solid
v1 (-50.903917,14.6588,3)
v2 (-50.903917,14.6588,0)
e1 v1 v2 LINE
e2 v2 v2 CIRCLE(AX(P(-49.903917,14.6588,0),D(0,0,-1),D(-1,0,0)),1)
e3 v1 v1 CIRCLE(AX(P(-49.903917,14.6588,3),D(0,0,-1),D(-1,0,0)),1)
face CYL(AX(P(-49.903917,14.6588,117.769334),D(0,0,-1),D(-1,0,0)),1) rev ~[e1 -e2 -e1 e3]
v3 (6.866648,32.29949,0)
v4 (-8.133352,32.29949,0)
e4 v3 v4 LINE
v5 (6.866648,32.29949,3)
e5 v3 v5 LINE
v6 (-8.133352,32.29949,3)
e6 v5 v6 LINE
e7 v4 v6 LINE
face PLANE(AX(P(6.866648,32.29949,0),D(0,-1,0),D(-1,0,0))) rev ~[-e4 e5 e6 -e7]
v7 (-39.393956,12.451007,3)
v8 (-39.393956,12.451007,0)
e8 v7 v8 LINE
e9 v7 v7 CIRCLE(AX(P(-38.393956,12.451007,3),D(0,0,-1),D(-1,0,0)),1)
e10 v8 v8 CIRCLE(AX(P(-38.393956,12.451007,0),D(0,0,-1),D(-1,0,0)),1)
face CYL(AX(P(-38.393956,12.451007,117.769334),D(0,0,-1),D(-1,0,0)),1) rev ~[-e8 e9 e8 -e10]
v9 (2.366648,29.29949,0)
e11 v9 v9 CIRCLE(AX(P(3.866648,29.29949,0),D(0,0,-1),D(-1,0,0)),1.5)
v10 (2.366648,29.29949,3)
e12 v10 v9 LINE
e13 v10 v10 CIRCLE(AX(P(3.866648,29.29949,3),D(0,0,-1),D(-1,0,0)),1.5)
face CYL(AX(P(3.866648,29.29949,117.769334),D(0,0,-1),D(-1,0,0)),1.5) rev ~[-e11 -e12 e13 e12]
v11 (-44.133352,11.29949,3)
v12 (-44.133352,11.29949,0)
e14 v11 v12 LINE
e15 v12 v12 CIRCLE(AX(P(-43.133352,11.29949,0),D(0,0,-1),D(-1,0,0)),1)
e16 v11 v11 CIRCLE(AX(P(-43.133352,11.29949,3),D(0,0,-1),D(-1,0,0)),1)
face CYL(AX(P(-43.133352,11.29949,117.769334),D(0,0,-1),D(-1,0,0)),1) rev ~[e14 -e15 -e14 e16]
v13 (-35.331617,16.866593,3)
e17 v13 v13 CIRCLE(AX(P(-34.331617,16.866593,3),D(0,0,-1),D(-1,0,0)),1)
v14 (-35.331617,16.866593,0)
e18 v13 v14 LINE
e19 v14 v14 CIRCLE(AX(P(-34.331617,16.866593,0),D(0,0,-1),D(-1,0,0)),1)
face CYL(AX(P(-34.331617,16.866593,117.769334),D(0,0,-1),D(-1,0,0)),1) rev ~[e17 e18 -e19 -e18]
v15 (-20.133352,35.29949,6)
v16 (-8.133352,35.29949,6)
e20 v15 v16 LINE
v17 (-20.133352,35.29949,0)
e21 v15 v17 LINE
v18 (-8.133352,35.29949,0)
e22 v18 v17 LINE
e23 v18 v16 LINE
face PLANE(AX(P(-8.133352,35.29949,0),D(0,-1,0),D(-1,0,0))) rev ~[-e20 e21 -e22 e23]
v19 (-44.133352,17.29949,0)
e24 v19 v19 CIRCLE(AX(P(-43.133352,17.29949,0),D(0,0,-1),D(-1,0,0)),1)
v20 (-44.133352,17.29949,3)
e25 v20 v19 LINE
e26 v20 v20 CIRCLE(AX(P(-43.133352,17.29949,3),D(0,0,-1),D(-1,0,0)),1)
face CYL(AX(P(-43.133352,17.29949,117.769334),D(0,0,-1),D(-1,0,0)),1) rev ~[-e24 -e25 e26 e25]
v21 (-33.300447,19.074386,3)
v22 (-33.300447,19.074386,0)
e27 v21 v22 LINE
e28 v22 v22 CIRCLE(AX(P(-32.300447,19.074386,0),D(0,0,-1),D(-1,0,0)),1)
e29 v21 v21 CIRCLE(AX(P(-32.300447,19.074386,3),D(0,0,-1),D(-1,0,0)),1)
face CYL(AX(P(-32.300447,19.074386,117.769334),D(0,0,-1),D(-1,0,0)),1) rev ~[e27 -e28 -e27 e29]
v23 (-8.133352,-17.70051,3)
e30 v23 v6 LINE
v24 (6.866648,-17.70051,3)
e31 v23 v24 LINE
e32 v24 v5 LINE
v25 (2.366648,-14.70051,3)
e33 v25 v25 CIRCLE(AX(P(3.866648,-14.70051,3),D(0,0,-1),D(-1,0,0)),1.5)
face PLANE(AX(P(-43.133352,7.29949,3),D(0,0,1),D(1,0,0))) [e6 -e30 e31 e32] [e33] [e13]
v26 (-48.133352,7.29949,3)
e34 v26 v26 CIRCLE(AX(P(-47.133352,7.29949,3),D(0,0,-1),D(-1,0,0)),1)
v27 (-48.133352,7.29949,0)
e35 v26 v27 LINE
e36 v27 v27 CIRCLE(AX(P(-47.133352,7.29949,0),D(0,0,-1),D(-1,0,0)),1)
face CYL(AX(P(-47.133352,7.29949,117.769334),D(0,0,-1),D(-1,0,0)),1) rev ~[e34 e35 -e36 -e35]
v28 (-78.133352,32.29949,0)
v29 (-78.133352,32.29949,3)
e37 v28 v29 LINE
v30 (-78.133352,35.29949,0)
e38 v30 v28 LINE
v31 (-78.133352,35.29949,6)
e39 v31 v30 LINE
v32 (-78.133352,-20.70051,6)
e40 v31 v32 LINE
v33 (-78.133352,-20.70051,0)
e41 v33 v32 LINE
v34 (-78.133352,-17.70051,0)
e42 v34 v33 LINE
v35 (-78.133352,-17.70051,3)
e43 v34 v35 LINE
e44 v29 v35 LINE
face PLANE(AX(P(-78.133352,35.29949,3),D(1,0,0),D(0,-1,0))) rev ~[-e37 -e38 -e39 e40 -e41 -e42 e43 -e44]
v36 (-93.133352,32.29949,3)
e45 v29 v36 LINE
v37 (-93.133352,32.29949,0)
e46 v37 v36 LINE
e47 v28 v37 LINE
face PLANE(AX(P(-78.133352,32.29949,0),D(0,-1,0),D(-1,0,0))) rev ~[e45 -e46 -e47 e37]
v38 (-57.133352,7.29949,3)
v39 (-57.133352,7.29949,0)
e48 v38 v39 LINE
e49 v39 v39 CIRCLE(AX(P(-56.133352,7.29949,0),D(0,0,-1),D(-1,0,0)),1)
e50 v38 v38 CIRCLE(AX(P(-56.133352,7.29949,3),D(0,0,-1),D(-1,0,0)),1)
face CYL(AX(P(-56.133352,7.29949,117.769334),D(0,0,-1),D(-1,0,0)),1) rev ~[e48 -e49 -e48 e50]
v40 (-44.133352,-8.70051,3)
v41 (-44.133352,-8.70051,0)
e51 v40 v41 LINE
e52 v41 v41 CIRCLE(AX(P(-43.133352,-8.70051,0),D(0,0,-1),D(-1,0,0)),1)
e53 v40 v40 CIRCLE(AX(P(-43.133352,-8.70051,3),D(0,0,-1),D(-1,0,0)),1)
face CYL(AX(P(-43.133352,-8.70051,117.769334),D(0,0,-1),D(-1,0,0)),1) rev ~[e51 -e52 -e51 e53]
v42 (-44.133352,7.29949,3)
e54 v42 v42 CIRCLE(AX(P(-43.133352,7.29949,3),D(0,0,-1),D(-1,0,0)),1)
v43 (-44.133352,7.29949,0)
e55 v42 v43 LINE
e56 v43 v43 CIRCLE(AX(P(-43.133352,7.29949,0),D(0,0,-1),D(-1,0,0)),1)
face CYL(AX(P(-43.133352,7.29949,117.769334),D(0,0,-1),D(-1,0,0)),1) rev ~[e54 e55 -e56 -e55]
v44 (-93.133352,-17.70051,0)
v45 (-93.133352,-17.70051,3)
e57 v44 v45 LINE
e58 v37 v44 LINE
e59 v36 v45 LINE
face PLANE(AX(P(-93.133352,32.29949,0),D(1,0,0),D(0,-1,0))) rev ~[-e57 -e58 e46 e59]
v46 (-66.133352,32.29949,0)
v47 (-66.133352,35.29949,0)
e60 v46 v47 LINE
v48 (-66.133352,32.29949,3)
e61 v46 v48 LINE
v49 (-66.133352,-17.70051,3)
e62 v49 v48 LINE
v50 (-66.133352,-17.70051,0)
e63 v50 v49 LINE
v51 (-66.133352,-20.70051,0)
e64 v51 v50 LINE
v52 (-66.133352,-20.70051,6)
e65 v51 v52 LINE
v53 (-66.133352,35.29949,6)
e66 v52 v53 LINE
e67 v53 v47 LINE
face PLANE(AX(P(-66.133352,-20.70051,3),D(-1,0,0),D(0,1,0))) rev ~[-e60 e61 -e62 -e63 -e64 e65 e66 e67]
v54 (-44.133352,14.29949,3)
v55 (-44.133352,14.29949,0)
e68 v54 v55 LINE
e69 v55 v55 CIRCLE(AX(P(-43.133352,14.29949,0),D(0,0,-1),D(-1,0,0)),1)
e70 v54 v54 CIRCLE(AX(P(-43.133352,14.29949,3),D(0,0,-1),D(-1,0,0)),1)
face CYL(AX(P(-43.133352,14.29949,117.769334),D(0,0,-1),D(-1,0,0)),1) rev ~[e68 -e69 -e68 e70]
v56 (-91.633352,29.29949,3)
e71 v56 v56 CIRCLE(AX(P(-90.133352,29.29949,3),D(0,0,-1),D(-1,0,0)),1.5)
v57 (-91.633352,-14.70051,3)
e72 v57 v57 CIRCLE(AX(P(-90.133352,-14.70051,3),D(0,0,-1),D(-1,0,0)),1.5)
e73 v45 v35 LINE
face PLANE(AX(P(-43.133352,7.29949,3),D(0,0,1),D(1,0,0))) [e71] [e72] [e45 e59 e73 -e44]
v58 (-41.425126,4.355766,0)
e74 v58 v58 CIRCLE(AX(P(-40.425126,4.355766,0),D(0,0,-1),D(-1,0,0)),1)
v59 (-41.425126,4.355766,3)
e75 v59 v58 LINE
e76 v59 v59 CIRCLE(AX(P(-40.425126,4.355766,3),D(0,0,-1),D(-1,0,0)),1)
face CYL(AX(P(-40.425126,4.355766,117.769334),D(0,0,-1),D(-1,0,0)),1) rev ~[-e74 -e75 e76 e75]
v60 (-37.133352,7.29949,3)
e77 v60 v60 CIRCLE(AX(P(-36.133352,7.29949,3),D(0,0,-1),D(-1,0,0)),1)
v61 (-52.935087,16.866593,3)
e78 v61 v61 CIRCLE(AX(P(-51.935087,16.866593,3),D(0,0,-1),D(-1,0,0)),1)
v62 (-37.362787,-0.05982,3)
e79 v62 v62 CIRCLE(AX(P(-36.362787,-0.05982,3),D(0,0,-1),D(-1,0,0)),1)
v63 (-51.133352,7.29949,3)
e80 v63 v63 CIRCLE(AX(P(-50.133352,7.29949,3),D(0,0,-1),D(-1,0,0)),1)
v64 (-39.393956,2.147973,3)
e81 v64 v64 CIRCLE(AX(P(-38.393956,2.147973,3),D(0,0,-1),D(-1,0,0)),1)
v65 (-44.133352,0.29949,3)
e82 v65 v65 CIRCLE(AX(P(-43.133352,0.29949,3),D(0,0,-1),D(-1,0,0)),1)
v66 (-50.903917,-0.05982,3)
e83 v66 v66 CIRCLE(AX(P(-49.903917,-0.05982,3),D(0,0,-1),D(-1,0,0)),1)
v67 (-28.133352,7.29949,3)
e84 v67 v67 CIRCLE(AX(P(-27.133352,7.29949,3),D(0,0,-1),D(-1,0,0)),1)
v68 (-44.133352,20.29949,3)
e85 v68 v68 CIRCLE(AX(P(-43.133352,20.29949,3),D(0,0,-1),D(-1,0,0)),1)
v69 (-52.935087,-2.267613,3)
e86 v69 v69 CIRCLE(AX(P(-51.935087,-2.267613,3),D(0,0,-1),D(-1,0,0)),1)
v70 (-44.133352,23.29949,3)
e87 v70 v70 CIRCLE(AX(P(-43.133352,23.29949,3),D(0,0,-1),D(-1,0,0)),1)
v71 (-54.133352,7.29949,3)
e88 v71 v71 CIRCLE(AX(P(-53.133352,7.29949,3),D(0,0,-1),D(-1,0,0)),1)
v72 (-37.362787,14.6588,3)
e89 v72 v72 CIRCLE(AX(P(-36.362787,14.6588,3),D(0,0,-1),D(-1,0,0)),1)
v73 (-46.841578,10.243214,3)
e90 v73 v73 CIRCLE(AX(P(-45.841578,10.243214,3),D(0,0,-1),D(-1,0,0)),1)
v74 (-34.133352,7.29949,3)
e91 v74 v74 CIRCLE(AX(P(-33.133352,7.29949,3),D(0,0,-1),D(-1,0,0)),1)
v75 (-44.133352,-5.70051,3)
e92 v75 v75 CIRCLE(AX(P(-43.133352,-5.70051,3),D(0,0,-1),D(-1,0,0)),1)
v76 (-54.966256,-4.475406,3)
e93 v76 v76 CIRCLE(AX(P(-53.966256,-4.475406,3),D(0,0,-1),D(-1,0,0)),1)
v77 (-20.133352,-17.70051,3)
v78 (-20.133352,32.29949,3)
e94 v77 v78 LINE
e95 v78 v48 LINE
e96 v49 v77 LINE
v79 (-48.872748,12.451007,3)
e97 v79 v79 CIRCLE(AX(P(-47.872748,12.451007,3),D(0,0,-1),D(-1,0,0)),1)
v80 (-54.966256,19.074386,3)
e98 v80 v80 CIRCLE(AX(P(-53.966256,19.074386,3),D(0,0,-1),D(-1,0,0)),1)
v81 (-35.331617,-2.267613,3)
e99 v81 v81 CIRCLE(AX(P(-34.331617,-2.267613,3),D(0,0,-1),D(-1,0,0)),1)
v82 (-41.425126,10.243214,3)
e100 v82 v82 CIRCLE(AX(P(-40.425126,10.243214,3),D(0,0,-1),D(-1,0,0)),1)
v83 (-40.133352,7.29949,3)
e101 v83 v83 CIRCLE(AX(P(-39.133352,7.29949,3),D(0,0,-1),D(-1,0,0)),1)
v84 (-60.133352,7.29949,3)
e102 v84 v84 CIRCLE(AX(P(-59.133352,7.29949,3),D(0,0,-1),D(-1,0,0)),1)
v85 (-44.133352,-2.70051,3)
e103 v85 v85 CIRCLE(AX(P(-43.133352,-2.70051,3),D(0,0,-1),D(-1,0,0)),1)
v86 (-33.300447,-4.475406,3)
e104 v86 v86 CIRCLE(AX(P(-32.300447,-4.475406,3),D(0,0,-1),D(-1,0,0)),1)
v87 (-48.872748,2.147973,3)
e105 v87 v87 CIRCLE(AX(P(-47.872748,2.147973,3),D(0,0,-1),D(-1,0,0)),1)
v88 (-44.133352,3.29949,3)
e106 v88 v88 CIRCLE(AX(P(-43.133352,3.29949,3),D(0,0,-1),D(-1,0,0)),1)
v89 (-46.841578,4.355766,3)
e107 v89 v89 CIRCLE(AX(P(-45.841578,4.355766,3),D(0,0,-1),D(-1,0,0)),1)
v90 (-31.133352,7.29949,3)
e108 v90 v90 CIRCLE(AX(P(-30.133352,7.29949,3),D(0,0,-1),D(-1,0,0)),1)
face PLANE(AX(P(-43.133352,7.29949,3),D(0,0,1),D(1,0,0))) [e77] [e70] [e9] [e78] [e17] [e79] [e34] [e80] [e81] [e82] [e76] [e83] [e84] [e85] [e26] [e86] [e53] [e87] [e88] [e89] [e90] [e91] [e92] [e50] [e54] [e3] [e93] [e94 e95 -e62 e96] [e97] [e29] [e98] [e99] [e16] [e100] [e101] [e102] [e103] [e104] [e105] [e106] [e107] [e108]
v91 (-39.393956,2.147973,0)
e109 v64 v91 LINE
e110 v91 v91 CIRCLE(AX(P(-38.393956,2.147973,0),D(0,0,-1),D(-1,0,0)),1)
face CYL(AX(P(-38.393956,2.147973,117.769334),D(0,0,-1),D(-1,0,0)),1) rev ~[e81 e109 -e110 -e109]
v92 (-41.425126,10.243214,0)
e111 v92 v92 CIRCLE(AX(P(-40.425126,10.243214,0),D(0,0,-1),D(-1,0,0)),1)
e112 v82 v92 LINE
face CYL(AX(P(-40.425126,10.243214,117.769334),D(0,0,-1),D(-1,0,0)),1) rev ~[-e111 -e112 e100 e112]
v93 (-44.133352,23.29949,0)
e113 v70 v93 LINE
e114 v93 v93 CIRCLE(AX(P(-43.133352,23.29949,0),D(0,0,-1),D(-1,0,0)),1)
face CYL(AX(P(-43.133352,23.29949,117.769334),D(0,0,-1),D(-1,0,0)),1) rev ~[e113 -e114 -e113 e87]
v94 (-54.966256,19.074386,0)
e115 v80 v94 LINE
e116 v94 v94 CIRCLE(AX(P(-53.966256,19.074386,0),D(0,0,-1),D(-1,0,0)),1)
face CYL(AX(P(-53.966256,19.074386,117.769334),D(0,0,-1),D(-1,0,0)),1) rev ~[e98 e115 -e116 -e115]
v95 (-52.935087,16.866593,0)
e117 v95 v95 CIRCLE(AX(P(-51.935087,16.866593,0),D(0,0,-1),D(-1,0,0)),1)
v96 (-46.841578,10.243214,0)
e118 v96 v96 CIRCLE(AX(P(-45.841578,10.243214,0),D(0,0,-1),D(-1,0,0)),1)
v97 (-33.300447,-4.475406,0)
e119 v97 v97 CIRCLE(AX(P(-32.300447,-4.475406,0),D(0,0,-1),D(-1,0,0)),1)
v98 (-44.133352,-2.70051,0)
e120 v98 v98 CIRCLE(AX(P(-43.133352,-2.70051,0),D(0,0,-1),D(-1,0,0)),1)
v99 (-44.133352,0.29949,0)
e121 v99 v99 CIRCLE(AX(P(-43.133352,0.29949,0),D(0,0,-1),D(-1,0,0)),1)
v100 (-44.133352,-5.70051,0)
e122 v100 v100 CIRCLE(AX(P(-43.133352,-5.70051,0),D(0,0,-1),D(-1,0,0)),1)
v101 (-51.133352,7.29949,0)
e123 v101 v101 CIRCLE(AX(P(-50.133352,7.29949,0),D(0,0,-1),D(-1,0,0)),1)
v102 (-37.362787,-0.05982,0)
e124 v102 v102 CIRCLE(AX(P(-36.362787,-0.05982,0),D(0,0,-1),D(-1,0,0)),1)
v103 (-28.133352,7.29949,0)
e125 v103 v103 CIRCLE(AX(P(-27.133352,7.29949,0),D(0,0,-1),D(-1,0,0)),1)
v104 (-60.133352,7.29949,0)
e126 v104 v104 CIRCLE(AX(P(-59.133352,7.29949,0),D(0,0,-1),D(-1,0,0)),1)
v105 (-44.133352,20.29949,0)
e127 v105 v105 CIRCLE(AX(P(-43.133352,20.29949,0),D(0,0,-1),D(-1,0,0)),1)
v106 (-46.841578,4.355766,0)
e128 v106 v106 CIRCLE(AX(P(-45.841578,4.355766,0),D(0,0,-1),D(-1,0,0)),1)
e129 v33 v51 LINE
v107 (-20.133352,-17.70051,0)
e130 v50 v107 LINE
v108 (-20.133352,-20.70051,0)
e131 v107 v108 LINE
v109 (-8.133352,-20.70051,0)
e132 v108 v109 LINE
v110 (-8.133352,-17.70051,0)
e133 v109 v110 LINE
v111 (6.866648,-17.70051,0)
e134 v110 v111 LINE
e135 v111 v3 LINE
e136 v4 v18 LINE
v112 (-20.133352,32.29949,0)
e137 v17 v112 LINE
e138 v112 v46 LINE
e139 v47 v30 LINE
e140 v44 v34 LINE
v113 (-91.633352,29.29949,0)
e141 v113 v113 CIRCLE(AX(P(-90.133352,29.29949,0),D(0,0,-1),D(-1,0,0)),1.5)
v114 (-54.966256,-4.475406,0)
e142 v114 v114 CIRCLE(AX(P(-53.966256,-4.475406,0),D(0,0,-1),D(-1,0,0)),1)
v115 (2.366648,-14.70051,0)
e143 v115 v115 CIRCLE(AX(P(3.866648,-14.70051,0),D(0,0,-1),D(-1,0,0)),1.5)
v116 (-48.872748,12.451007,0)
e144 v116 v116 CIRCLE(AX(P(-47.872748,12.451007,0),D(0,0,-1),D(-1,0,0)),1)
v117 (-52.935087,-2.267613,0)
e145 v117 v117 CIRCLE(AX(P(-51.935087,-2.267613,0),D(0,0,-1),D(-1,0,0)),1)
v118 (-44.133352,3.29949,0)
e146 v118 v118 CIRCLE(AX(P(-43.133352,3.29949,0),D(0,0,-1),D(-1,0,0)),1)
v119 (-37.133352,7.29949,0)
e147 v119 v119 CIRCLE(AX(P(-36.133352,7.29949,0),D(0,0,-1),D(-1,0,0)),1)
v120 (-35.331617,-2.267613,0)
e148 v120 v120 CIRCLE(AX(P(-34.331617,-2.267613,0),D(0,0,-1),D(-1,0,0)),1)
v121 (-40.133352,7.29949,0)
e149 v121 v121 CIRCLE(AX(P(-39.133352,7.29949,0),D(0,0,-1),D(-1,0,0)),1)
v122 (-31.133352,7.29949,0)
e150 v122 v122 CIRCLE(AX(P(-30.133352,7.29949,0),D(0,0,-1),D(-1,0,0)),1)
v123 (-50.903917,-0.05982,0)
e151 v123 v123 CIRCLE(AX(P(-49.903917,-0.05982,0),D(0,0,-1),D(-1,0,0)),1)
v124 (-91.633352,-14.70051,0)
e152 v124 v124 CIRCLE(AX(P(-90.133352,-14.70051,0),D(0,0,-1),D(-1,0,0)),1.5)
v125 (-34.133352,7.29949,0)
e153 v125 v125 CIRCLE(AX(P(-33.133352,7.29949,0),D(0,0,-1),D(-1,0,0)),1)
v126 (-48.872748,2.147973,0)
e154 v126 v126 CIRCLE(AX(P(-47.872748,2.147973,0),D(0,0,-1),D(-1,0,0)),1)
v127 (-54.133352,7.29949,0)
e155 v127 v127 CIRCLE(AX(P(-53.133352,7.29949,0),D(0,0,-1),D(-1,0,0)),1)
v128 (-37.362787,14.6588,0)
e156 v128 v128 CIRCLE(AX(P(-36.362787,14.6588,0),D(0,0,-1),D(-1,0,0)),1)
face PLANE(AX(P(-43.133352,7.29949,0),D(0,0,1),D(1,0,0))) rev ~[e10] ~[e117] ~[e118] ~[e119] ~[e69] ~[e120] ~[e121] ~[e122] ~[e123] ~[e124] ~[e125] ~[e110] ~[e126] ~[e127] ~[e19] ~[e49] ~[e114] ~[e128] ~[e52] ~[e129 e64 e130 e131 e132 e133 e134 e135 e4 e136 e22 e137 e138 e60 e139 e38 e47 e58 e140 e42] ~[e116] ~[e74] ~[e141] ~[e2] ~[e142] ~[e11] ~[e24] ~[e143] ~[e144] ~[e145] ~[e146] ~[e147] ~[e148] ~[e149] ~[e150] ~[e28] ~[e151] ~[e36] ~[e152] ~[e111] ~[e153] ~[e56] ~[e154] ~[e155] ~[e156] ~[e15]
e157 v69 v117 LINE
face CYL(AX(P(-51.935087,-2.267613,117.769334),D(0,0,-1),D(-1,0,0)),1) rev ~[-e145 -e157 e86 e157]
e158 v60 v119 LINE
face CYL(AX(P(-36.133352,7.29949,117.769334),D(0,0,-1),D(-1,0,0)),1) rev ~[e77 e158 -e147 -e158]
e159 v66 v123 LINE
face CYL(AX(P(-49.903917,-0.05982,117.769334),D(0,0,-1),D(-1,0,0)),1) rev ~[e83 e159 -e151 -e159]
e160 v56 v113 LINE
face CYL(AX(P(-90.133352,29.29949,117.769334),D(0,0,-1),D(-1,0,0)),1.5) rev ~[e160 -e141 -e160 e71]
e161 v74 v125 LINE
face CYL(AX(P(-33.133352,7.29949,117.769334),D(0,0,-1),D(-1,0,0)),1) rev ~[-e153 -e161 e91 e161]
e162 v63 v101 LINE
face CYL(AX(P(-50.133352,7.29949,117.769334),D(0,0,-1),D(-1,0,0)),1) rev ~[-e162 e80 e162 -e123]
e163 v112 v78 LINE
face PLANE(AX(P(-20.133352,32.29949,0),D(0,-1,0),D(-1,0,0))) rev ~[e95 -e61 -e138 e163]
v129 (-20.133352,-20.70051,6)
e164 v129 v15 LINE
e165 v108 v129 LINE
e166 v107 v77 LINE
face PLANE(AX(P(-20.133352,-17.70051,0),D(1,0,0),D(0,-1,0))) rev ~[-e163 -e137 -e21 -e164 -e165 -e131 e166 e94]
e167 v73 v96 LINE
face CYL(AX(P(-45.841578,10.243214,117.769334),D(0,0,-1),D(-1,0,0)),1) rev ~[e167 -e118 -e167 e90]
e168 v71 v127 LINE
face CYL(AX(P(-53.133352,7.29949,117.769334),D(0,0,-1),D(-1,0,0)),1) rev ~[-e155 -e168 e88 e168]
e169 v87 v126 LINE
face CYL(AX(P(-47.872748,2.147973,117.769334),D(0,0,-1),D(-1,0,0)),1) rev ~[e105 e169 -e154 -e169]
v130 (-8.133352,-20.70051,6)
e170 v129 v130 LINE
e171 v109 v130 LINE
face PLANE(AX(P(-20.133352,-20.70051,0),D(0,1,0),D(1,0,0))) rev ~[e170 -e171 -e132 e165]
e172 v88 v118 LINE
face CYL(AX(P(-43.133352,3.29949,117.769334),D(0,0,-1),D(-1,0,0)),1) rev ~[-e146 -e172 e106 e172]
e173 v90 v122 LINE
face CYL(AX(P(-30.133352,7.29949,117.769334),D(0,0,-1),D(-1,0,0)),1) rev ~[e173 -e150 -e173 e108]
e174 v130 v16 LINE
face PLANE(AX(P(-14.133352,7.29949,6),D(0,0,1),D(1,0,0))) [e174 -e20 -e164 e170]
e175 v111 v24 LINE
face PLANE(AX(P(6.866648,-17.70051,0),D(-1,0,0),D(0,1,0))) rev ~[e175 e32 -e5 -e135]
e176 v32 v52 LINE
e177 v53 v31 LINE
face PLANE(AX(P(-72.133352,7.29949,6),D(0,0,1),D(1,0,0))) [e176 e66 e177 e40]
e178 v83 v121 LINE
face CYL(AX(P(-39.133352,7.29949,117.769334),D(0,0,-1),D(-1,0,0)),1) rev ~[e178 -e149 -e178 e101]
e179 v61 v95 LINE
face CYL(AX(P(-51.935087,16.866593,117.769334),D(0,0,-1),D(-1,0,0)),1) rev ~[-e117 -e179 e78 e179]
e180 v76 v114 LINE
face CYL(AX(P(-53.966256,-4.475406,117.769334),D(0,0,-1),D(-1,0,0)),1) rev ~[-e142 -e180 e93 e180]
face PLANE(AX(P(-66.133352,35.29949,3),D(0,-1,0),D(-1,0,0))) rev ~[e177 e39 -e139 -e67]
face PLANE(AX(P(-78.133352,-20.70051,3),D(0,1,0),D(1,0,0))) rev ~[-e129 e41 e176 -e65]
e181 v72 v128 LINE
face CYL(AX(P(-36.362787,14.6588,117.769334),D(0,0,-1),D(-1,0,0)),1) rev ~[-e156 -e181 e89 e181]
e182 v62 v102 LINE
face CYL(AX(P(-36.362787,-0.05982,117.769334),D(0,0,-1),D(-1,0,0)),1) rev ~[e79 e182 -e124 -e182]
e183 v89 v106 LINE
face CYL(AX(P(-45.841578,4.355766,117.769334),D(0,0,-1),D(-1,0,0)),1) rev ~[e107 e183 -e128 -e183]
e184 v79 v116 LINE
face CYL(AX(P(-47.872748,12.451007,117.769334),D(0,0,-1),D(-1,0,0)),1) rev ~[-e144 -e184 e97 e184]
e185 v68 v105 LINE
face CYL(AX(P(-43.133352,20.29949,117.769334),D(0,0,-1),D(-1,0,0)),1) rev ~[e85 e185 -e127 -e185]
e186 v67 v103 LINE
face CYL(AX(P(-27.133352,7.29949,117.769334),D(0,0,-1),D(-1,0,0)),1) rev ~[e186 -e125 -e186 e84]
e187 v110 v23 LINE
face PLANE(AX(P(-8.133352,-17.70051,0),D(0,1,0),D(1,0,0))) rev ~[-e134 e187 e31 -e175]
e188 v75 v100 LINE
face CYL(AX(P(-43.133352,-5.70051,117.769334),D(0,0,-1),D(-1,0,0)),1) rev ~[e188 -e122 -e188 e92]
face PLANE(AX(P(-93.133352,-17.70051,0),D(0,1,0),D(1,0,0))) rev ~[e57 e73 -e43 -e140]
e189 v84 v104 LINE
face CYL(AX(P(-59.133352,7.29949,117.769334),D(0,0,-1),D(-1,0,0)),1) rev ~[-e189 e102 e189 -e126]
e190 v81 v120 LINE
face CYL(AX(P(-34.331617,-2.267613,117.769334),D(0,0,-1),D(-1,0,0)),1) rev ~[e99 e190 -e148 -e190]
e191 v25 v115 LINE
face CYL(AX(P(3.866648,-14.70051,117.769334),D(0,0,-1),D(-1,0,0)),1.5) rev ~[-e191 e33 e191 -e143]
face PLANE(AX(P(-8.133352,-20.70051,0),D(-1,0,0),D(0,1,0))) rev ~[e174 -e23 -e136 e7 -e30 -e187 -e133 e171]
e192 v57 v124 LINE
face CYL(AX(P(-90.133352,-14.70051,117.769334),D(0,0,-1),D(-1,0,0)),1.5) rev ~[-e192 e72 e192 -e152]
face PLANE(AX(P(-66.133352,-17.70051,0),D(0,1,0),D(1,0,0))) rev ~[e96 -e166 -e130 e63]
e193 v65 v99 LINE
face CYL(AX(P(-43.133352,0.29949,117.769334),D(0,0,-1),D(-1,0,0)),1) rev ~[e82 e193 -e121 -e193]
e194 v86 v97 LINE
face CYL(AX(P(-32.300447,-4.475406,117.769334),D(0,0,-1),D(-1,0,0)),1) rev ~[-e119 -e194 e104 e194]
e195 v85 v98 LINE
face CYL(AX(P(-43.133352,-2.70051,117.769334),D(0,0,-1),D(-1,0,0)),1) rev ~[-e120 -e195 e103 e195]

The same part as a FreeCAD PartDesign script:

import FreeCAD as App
import Part
import Sketcher
from FreeCAD import Vector

doc = App.newDocument("Part")
params = doc.addObject("Spreadsheet::Sheet", "Params")
for row, (alias, value) in enumerate([
    ("sketch1_width", "15 mm"),
    ("sketch1_width2", "12 mm"),
    ("sketch1_width3", "46 mm"),
    ("sketch1_height", "50 mm"),
    ("sketch1_height2", "3 mm"),
    ("pad1_length", "3 mm"),
    ("sketch2_width", "12 mm"),
    ("sketch2_height", "56 mm"),
    ("pad2_length", "3 mm"),
    ("sketch3_diameter", "3 mm"),
    ("hole_diameter", "3 mm"),
    ("sketch4_diameter", "2 mm"),
    ("hole2_diameter", "2 mm"),
], start=1):
    params.set(f"A{row}", alias)
    params.set(f"B{row}", "=" + value)
    params.setAlias(f"B{row}", alias)

body = doc.addObject("PartDesign::Body", "Body")

# Sketch on XY plane
sketch1 = body.newObject("Sketcher::SketchObject", "Sketch")
sketch1.AttachmentSupport = (doc.getObject("XY_Plane"), [""])
sketch1.MapMode = "FlatFace"
sketch1.addGeometry(Part.LineSegment(Vector(-78.133352, 32.29949, 0), Vector(-93.133352, 32.29949, 0)), False)
sketch1.addGeometry(Part.LineSegment(Vector(-93.133352, 32.29949, 0), Vector(-93.133352, -17.70051, 0)), False)
sketch1.addGeometry(Part.LineSegment(Vector(-93.133352, -17.70051, 0), Vector(-78.133352, -17.70051, 0)), False)
sketch1.addGeometry(Part.LineSegment(Vector(-78.133352, -17.70051, 0), Vector(-78.133352, -20.70051, 0)), False)
sketch1.addGeometry(Part.LineSegment(Vector(-78.133352, -20.70051, 0), Vector(-66.133352, -20.70051, 0)), False)
sketch1.addGeometry(Part.LineSegment(Vector(-66.133352, -20.70051, 0), Vector(-66.133352, -17.70051, 0)), False)
sketch1.addGeometry(Part.LineSegment(Vector(-66.133352, -17.70051, 0), Vector(-20.133352, -17.70051, 0)), False)
sketch1.addGeometry(Part.LineSegment(Vector(-20.133352, -17.70051, 0), Vector(-20.133352, -20.70051, 0)), False)
sketch1.addGeometry(Part.LineSegment(Vector(-20.133352, -20.70051, 0), Vector(-8.133352, -20.70051, 0)), False)
sketch1.addGeometry(Part.LineSegment(Vector(-8.133352, -20.70051, 0), Vector(-8.133352, -17.70051, 0)), False)
sketch1.addGeometry(Part.LineSegment(Vector(-8.133352, -17.70051, 0), Vector(6.866648, -17.70051, 0)), False)
sketch1.addGeometry(Part.LineSegment(Vector(6.866648, -17.70051, 0), Vector(6.866648, 32.29949, 0)), False)
sketch1.addGeometry(Part.LineSegment(Vector(6.866648, 32.29949, 0), Vector(-8.133352, 32.29949, 0)), False)
sketch1.addGeometry(Part.LineSegment(Vector(-8.133352, 32.29949, 0), Vector(-8.133352, 35.29949, 0)), False)
sketch1.addGeometry(Part.LineSegment(Vector(-8.133352, 35.29949, 0), Vector(-20.133352, 35.29949, 0)), False)
sketch1.addGeometry(Part.LineSegment(Vector(-20.133352, 35.29949, 0), Vector(-20.133352, 32.29949, 0)), False)
sketch1.addGeometry(Part.LineSegment(Vector(-20.133352, 32.29949, 0), Vector(-66.133352, 32.29949, 0)), False)
sketch1.addGeometry(Part.LineSegment(Vector(-66.133352, 32.29949, 0), Vector(-66.133352, 35.29949, 0)), False)
sketch1.addGeometry(Part.LineSegment(Vector(-66.133352, 35.29949, 0), Vector(-78.133352, 35.29949, 0)), False)
sketch1.addGeometry(Part.LineSegment(Vector(-78.133352, 35.29949, 0), Vector(-78.133352, 32.29949, 0)), False)
sketch1.addConstraint(Sketcher.Constraint("Coincident", 0, 2, 1, 1))
sketch1.addConstraint(Sketcher.Constraint("Coincident", 1, 2, 2, 1))
sketch1.addConstraint(Sketcher.Constraint("Coincident", 2, 2, 3, 1))
sketch1.addConstraint(Sketcher.Constraint("Coincident", 3, 2, 4, 1))
sketch1.addConstraint(Sketcher.Constraint("Coincident", 4, 2, 5, 1))
sketch1.addConstraint(Sketcher.Constraint("Coincident", 5, 2, 6, 1))
sketch1.addConstraint(Sketcher.Constraint("Coincident", 6, 2, 7, 1))
sketch1.addConstraint(Sketcher.Constraint("Coincident", 7, 2, 8, 1))
sketch1.addConstraint(Sketcher.Constraint("Coincident", 8, 2, 9, 1))
sketch1.addConstraint(Sketcher.Constraint("Coincident", 9, 2, 10, 1))
sketch1.addConstraint(Sketcher.Constraint("Coincident", 10, 2, 11, 1))
sketch1.addConstraint(Sketcher.Constraint("Coincident", 11, 2, 12, 1))
sketch1.addConstraint(Sketcher.Constraint("Coincident", 12, 2, 13, 1))
sketch1.addConstraint(Sketcher.Constraint("Coincident", 13, 2, 14, 1))
sketch1.addConstraint(Sketcher.Constraint("Coincident", 14, 2, 15, 1))
sketch1.addConstraint(Sketcher.Constraint("Coincident", 15, 2, 16, 1))
sketch1.addConstraint(Sketcher.Constraint("Coincident", 16, 2, 17, 1))
sketch1.addConstraint(Sketcher.Constraint("Coincident", 17, 2, 18, 1))
sketch1.addConstraint(Sketcher.Constraint("Coincident", 18, 2, 19, 1))
sketch1.addConstraint(Sketcher.Constraint("Coincident", 19, 2, 0, 1))
sketch1.addConstraint(Sketcher.Constraint("Horizontal", 0))
sketch1.addConstraint(Sketcher.Constraint("Vertical", 1))
sketch1.addConstraint(Sketcher.Constraint("Horizontal", 2))
sketch1.addConstraint(Sketcher.Constraint("Vertical", 3))
sketch1.addConstraint(Sketcher.Constraint("Horizontal", 4))
sketch1.addConstraint(Sketcher.Constraint("Vertical", 5))
sketch1.addConstraint(Sketcher.Constraint("Horizontal", 6))
sketch1.addConstraint(Sketcher.Constraint("Vertical", 7))
sketch1.addConstraint(Sketcher.Constraint("Horizontal", 8))
sketch1.addConstraint(Sketcher.Constraint("Vertical", 9))
sketch1.addConstraint(Sketcher.Constraint("Horizontal", 10))
sketch1.addConstraint(Sketcher.Constraint("Vertical", 11))
sketch1.addConstraint(Sketcher.Constraint("Horizontal", 12))
sketch1.addConstraint(Sketcher.Constraint("Vertical", 13))
sketch1.addConstraint(Sketcher.Constraint("Horizontal", 14))
sketch1.addConstraint(Sketcher.Constraint("Vertical", 15))
sketch1.addConstraint(Sketcher.Constraint("Horizontal", 16))
sketch1.addConstraint(Sketcher.Constraint("Vertical", 17))
sketch1.addConstraint(Sketcher.Constraint("Horizontal", 18))
sketch1.addConstraint(Sketcher.Constraint("Vertical", 19))
sketch1.addConstraint(Sketcher.Constraint("Horizontal", 2, 2, 5, 2))
sketch1.addConstraint(Sketcher.Constraint("Horizontal", 4, 2, 7, 2))
sketch1.addConstraint(Sketcher.Constraint("Horizontal", 6, 2, 9, 2))
sketch1.addConstraint(Sketcher.Constraint("Horizontal", 0, 2, 11, 2))
sketch1.addConstraint(Sketcher.Constraint("Horizontal", 12, 2, 15, 2))
sketch1.addConstraint(Sketcher.Constraint("Horizontal", 14, 2, 17, 2))
sketch1.addConstraint(Sketcher.Constraint("Vertical", 9, 2, 12, 2))
sketch1.addConstraint(Sketcher.Constraint("Vertical", 7, 2, 14, 2))
sketch1.addConstraint(Sketcher.Constraint("Vertical", 5, 2, 16, 2))
sketch1.addConstraint(Sketcher.Constraint("Vertical", 3, 2, 18, 2))
sketch1.addConstraint(Sketcher.Constraint("Equal", 4, 8))
sketch1.addConstraint(Sketcher.Constraint("Equal", 2, 10))
sketch1.addConstraint(Sketcher.Constraint("Equal", 9, 13))
sketch1.addConstraint(Sketcher.Constraint("DistanceX", 0, 2, 0, 1, 15.0))
sketch1.addConstraint(Sketcher.Constraint("DistanceX", 4, 1, 4, 2, 12.0))
sketch1.addConstraint(Sketcher.Constraint("DistanceX", 6, 1, 6, 2, 46.0))
sketch1.addConstraint(Sketcher.Constraint("DistanceY", 1, 2, 1, 1, 50.0))
sketch1.addConstraint(Sketcher.Constraint("DistanceY", 3, 2, 3, 1, 3.0))
sketch1.addConstraint(Sketcher.Constraint("DistanceY", -1, 1, 0, 2, 32.29949))
sketch1.addConstraint(Sketcher.Constraint("DistanceX", 6, 2, -1, 1, 20.133352))
sketch1.setExpression("Constraints[53]", "Params.sketch1_width")
sketch1.setExpression("Constraints[54]", "Params.sketch1_width2")
sketch1.setExpression("Constraints[55]", "Params.sketch1_width3")
sketch1.setExpression("Constraints[56]", "Params.sketch1_height")
sketch1.setExpression("Constraints[57]", "Params.sketch1_height2")
pad1 = body.newObject("PartDesign::Pad", "Pad")
pad1.Profile = sketch1
pad1.setExpression("Length", "Params.pad1_length")

# Sketch on XY plane
sketch2 = body.newObject("Sketcher::SketchObject", "Sketch001")
sketch2.AttachmentSupport = (doc.getObject("XY_Plane"), [""])
sketch2.MapMode = "FlatFace"
sketch2.AttachmentOffset = App.Placement(Vector(0, 0, 3), App.Rotation())
sketch2.addGeometry(Part.LineSegment(Vector(-78.133352, 35.29949, 0), Vector(-78.133352, -20.70051, 0)), False)
sketch2.addGeometry(Part.LineSegment(Vector(-78.133352, -20.70051, 0), Vector(-66.133352, -20.70051, 0)), False)
sketch2.addGeometry(Part.LineSegment(Vector(-66.133352, -20.70051, 0), Vector(-66.133352, 35.29949, 0)), False)
sketch2.addGeometry(Part.LineSegment(Vector(-66.133352, 35.29949, 0), Vector(-78.133352, 35.29949, 0)), False)
sketch2.addGeometry(Part.LineSegment(Vector(-20.133352, 35.29949, 0), Vector(-20.133352, -20.70051, 0)), False)
sketch2.addGeometry(Part.LineSegment(Vector(-20.133352, -20.70051, 0), Vector(-8.133352, -20.70051, 0)), False)
sketch2.addGeometry(Part.LineSegment(Vector(-8.133352, -20.70051, 0), Vector(-8.133352, 35.29949, 0)), False)
sketch2.addGeometry(Part.LineSegment(Vector(-8.133352, 35.29949, 0), Vector(-20.133352, 35.29949, 0)), False)
sketch2.addConstraint(Sketcher.Constraint("Coincident", 0, 2, 1, 1))
sketch2.addConstraint(Sketcher.Constraint("Coincident", 1, 2, 2, 1))
sketch2.addConstraint(Sketcher.Constraint("Coincident", 2, 2, 3, 1))
sketch2.addConstraint(Sketcher.Constraint("Coincident", 3, 2, 0, 1))
sketch2.addConstraint(Sketcher.Constraint("Coincident", 4, 2, 5, 1))
sketch2.addConstraint(Sketcher.Constraint("Coincident", 5, 2, 6, 1))
sketch2.addConstraint(Sketcher.Constraint("Coincident", 6, 2, 7, 1))
sketch2.addConstraint(Sketcher.Constraint("Coincident", 7, 2, 4, 1))
sketch2.addConstraint(Sketcher.Constraint("Vertical", 0))
sketch2.addConstraint(Sketcher.Constraint("Horizontal", 1))
sketch2.addConstraint(Sketcher.Constraint("Vertical", 2))
sketch2.addConstraint(Sketcher.Constraint("Horizontal", 3))
sketch2.addConstraint(Sketcher.Constraint("Vertical", 4))
sketch2.addConstraint(Sketcher.Constraint("Horizontal", 5))
sketch2.addConstraint(Sketcher.Constraint("Vertical", 6))
sketch2.addConstraint(Sketcher.Constraint("Horizontal", 7))
sketch2.addConstraint(Sketcher.Constraint("Horizontal", 1, 2, 4, 2))
sketch2.addConstraint(Sketcher.Constraint("Horizontal", 3, 2, 6, 2))
sketch2.addConstraint(Sketcher.Constraint("Equal", 3, 5))
sketch2.addConstraint(Sketcher.Constraint("DistanceX", 1, 1, 1, 2, 12.0))
sketch2.addConstraint(Sketcher.Constraint("DistanceY", 0, 2, 0, 1, 56.0))
sketch2.addConstraint(Sketcher.Constraint("DistanceX", 1, 2, 4, 2, 46.0))
sketch2.addConstraint(Sketcher.Constraint("DistanceY", 0, 2, -1, 1, 20.70051))
sketch2.addConstraint(Sketcher.Constraint("DistanceX", 4, 2, -1, 1, 20.133352))
sketch2.setExpression("Constraints[19]", "Params.sketch2_width")
sketch2.setExpression("Constraints[20]", "Params.sketch2_height")
pad2 = body.newObject("PartDesign::Pad", "Pad001")
pad2.Profile = sketch2
pad2.setExpression("Length", "Params.pad2_length")

# Sketch on XY plane
sketch3 = body.newObject("Sketcher::SketchObject", "Sketch002")
sketch3.AttachmentSupport = (doc.getObject("XY_Plane"), [""])
sketch3.MapMode = "FlatFace"
sketch3.AttachmentOffset = App.Placement(Vector(0, 0, 3), App.Rotation())
sketch3.addGeometry(Part.Circle(Vector(-90.133352, -14.70051, 0), Vector(0, 0, 1), 1.5), False)
sketch3.addGeometry(Part.Circle(Vector(-90.133352, 29.29949, 0), Vector(0, 0, 1), 1.5), False)
sketch3.addGeometry(Part.Circle(Vector(3.866648, -14.70051, 0), Vector(0, 0, 1), 1.5), False)
sketch3.addGeometry(Part.Circle(Vector(3.866648, 29.29949, 0), Vector(0, 0, 1), 1.5), False)
sketch3.addConstraint(Sketcher.Constraint("Equal", 0, 1))
sketch3.addConstraint(Sketcher.Constraint("Equal", 1, 2))
sketch3.addConstraint(Sketcher.Constraint("Equal", 2, 3))
sketch3.addConstraint(Sketcher.Constraint("Horizontal", 0, 3, 2, 3))
sketch3.addConstraint(Sketcher.Constraint("Horizontal", 1, 3, 3, 3))
sketch3.addConstraint(Sketcher.Constraint("Vertical", 0, 3, 1, 3))
sketch3.addConstraint(Sketcher.Constraint("Vertical", 2, 3, 3, 3))
sketch3.addConstraint(Sketcher.Constraint("Diameter", 0, 3.0))
sketch3.addConstraint(Sketcher.Constraint("DistanceY", 0, 3, 1, 3, 44.0))
sketch3.addConstraint(Sketcher.Constraint("DistanceX", 0, 3, 2, 3, 94.0))
sketch3.addConstraint(Sketcher.Constraint("DistanceY", 0, 3, -1, 1, 14.70051))
sketch3.addConstraint(Sketcher.Constraint("DistanceX", -1, 1, 2, 3, 3.866648))
sketch3.setExpression("Constraints[7]", "Params.sketch3_diameter")
doc.recompute()
hole = body.newObject("PartDesign::Hole", "Hole")
hole.Profile = sketch3
hole.ThreadType = "None"
hole.setExpression("Diameter", "Params.hole_diameter")
hole.DepthType = "ThroughAll"

# Sketch on XY plane
sketch4 = body.newObject("Sketcher::SketchObject", "Sketch003")
sketch4.AttachmentSupport = (doc.getObject("XY_Plane"), [""])
sketch4.MapMode = "FlatFace"
sketch4.AttachmentOffset = App.Placement(Vector(0, 0, 3), App.Rotation())
sketch4.addGeometry(Part.Circle(Vector(-53.966256, 19.074386, 0), Vector(0, 0, 1), 1), False)
sketch4.addGeometry(Part.Circle(Vector(-43.133352, 23.29949, 0), Vector(0, 0, 1), 1), False)
sketch4.addGeometry(Part.Circle(Vector(-32.300447, 19.074386, 0), Vector(0, 0, 1), 1), False)
sketch4.addGeometry(Part.Circle(Vector(-27.133352, 7.29949, 0), Vector(0, 0, 1), 1), False)
sketch4.addGeometry(Part.Circle(Vector(-32.300447, -4.475406, 0), Vector(0, 0, 1), 1), False)
sketch4.addGeometry(Part.Circle(Vector(-34.331617, -2.267613, 0), Vector(0, 0, 1), 1), False)
sketch4.addGeometry(Part.Circle(Vector(-36.362787, -0.05982, 0), Vector(0, 0, 1), 1), False)
sketch4.addGeometry(Part.Circle(Vector(-38.393956, 2.147973, 0), Vector(0, 0, 1), 1), False)
sketch4.addGeometry(Part.Circle(Vector(-40.425126, 4.355766, 0), Vector(0, 0, 1), 1), False)
sketch4.addGeometry(Part.Circle(Vector(-39.133352, 7.29949, 0), Vector(0, 0, 1), 1), False)
sketch4.addGeometry(Part.Circle(Vector(-36.133352, 7.29949, 0), Vector(0, 0, 1), 1), False)
sketch4.addGeometry(Part.Circle(Vector(-33.133352, 7.29949, 0), Vector(0, 0, 1), 1), False)
sketch4.addGeometry(Part.Circle(Vector(-30.133352, 7.29949, 0), Vector(0, 0, 1), 1), False)
sketch4.addGeometry(Part.Circle(Vector(-40.425126, 10.243214, 0), Vector(0, 0, 1), 1), False)
sketch4.addGeometry(Part.Circle(Vector(-38.393956, 12.451007, 0), Vector(0, 0, 1), 1), False)
sketch4.addGeometry(Part.Circle(Vector(-36.362787, 14.6588, 0), Vector(0, 0, 1), 1), False)
sketch4.addGeometry(Part.Circle(Vector(-34.331617, 16.866593, 0), Vector(0, 0, 1), 1), False)
sketch4.addGeometry(Part.Circle(Vector(-43.133352, 11.29949, 0), Vector(0, 0, 1), 1), False)
sketch4.addGeometry(Part.Circle(Vector(-43.133352, 14.29949, 0), Vector(0, 0, 1), 1), False)
sketch4.addGeometry(Part.Circle(Vector(-43.133352, 17.29949, 0), Vector(0, 0, 1), 1), False)
sketch4.addGeometry(Part.Circle(Vector(-43.133352, 20.29949, 0), Vector(0, 0, 1), 1), False)
sketch4.addGeometry(Part.Circle(Vector(-51.935087, 16.866593, 0), Vector(0, 0, 1), 1), False)
sketch4.addGeometry(Part.Circle(Vector(-49.903917, 14.6588, 0), Vector(0, 0, 1), 1), False)
sketch4.addGeometry(Part.Circle(Vector(-47.872748, 12.451007, 0), Vector(0, 0, 1), 1), False)
sketch4.addGeometry(Part.Circle(Vector(-45.841578, 10.243214, 0), Vector(0, 0, 1), 1), False)
sketch4.addGeometry(Part.Circle(Vector(-47.133352, 7.29949, 0), Vector(0, 0, 1), 1), False)
sketch4.addGeometry(Part.Circle(Vector(-45.841578, 4.355766, 0), Vector(0, 0, 1), 1), False)
sketch4.addGeometry(Part.Circle(Vector(-43.133352, 3.29949, 0), Vector(0, 0, 1), 1), False)
sketch4.addGeometry(Part.Circle(Vector(-43.133352, 0.29949, 0), Vector(0, 0, 1), 1), False)
sketch4.addGeometry(Part.Circle(Vector(-43.133352, -2.70051, 0), Vector(0, 0, 1), 1), False)
sketch4.addGeometry(Part.Circle(Vector(-43.133352, -5.70051, 0), Vector(0, 0, 1), 1), False)
sketch4.addGeometry(Part.Circle(Vector(-43.133352, -8.70051, 0), Vector(0, 0, 1), 1), False)
sketch4.addGeometry(Part.Circle(Vector(-53.966256, -4.475406, 0), Vector(0, 0, 1), 1), False)
sketch4.addGeometry(Part.Circle(Vector(-51.935087, -2.267613, 0), Vector(0, 0, 1), 1), False)
sketch4.addGeometry(Part.Circle(Vector(-49.903917, -0.05982, 0), Vector(0, 0, 1), 1), False)
sketch4.addGeometry(Part.Circle(Vector(-47.872748, 2.147973, 0), Vector(0, 0, 1), 1), False)
sketch4.addGeometry(Part.Circle(Vector(-50.133352, 7.29949, 0), Vector(0, 0, 1), 1), False)
sketch4.addGeometry(Part.Circle(Vector(-53.133352, 7.29949, 0), Vector(0, 0, 1), 1), False)
sketch4.addGeometry(Part.Circle(Vector(-56.133352, 7.29949, 0), Vector(0, 0, 1), 1), False)
sketch4.addGeometry(Part.Circle(Vector(-59.133352, 7.29949, 0), Vector(0, 0, 1), 1), False)
sketch4.addGeometry(Part.Circle(Vector(-43.133352, 7.29949, 0), Vector(0, 0, 1), 1), False)
sketch4.addConstraint(Sketcher.Constraint("Equal", 0, 1))
sketch4.addConstraint(Sketcher.Constraint("Equal", 1, 2))
sketch4.addConstraint(Sketcher.Constraint("Equal", 2, 3))
sketch4.addConstraint(Sketcher.Constraint("Equal", 3, 4))
sketch4.addConstraint(Sketcher.Constraint("Equal", 4, 5))
sketch4.addConstraint(Sketcher.Constraint("Equal", 5, 6))
sketch4.addConstraint(Sketcher.Constraint("Equal", 6, 7))
sketch4.addConstraint(Sketcher.Constraint("Equal", 7, 8))
sketch4.addConstraint(Sketcher.Constraint("Equal", 8, 9))
sketch4.addConstraint(Sketcher.Constraint("Equal", 9, 10))
sketch4.addConstraint(Sketcher.Constraint("Equal", 10, 11))
sketch4.addConstraint(Sketcher.Constraint("Equal", 11, 12))
sketch4.addConstraint(Sketcher.Constraint("Equal", 12, 13))
sketch4.addConstraint(Sketcher.Constraint("Equal", 13, 14))
sketch4.addConstraint(Sketcher.Constraint("Equal", 14, 15))
sketch4.addConstraint(Sketcher.Constraint("Equal", 15, 16))
sketch4.addConstraint(Sketcher.Constraint("Equal", 16, 17))
sketch4.addConstraint(Sketcher.Constraint("Equal", 17, 18))
sketch4.addConstraint(Sketcher.Constraint("Equal", 18, 19))
sketch4.addConstraint(Sketcher.Constraint("Equal", 19, 20))
sketch4.addConstraint(Sketcher.Constraint("Equal", 20, 21))
sketch4.addConstraint(Sketcher.Constraint("Equal", 21, 22))
sketch4.addConstraint(Sketcher.Constraint("Equal", 22, 23))
sketch4.addConstraint(Sketcher.Constraint("Equal", 23, 24))
sketch4.addConstraint(Sketcher.Constraint("Equal", 24, 25))
sketch4.addConstraint(Sketcher.Constraint("Equal", 25, 26))
sketch4.addConstraint(Sketcher.Constraint("Equal", 26, 27))
sketch4.addConstraint(Sketcher.Constraint("Equal", 27, 28))
sketch4.addConstraint(Sketcher.Constraint("Equal", 28, 29))
sketch4.addConstraint(Sketcher.Constraint("Equal", 29, 30))
sketch4.addConstraint(Sketcher.Constraint("Equal", 30, 31))
sketch4.addConstraint(Sketcher.Constraint("Equal", 31, 32))
sketch4.addConstraint(Sketcher.Constraint("Equal", 32, 33))
sketch4.addConstraint(Sketcher.Constraint("Equal", 33, 34))
sketch4.addConstraint(Sketcher.Constraint("Equal", 34, 35))
sketch4.addConstraint(Sketcher.Constraint("Equal", 35, 36))
sketch4.addConstraint(Sketcher.Constraint("Equal", 36, 37))
sketch4.addConstraint(Sketcher.Constraint("Equal", 37, 38))
sketch4.addConstraint(Sketcher.Constraint("Equal", 38, 39))
sketch4.addConstraint(Sketcher.Constraint("Equal", 39, 40))
sketch4.addConstraint(Sketcher.Constraint("Horizontal", 0, 3, 2, 3))
sketch4.addConstraint(Sketcher.Constraint("Horizontal", 3, 3, 9, 3))
sketch4.addConstraint(Sketcher.Constraint("Horizontal", 9, 3, 10, 3))
sketch4.addConstraint(Sketcher.Constraint("Horizontal", 10, 3, 11, 3))
sketch4.addConstraint(Sketcher.Constraint("Horizontal", 11, 3, 12, 3))
sketch4.addConstraint(Sketcher.Constraint("Horizontal", 16, 3, 21, 3))
sketch4.addConstraint(Sketcher.Constraint("Horizontal", 15, 3, 22, 3))
sketch4.addConstraint(Sketcher.Constraint("Horizontal", 14, 3, 23, 3))
sketch4.addConstraint(Sketcher.Constraint("Horizontal", 13, 3, 24, 3))
sketch4.addConstraint(Sketcher.Constraint("Horizontal", 12, 3, 25, 3))
sketch4.addConstraint(Sketcher.Constraint("Horizontal", 8, 3, 26, 3))
sketch4.addConstraint(Sketcher.Constraint("Horizontal", 4, 3, 32, 3))
sketch4.addConstraint(Sketcher.Constraint("Horizontal", 5, 3, 33, 3))
sketch4.addConstraint(Sketcher.Constraint("Horizontal", 6, 3, 34, 3))
sketch4.addConstraint(Sketcher.Constraint("Horizontal", 7, 3, 35, 3))
sketch4.addConstraint(Sketcher.Constraint("Horizontal", 25, 3, 36, 3))
sketch4.addConstraint(Sketcher.Constraint("Horizontal", 36, 3, 37, 3))
sketch4.addConstraint(Sketcher.Constraint("Horizontal", 37, 3, 38, 3))
sketch4.addConstraint(Sketcher.Constraint("Horizontal", 38, 3, 39, 3))
sketch4.addConstraint(Sketcher.Constraint("Horizontal", 39, 3, 40, 3))
sketch4.addConstraint(Sketcher.Constraint("Vertical", 2, 3, 4, 3))
sketch4.addConstraint(Sketcher.Constraint("Vertical", 8, 3, 13, 3))
sketch4.addConstraint(Sketcher.Constraint("Vertical", 7, 3, 14, 3))
sketch4.addConstraint(Sketcher.Constraint("Vertical", 6, 3, 15, 3))
sketch4.addConstraint(Sketcher.Constraint("Vertical", 5, 3, 16, 3))
sketch4.addConstraint(Sketcher.Constraint("Vertical", 1, 3, 17, 3))
sketch4.addConstraint(Sketcher.Constraint("Vertical", 17, 3, 18, 3))
sketch4.addConstraint(Sketcher.Constraint("Vertical", 18, 3, 19, 3))
sketch4.addConstraint(Sketcher.Constraint("Vertical", 19, 3, 20, 3))
sketch4.addConstraint(Sketcher.Constraint("Vertical", 24, 3, 26, 3))
sketch4.addConstraint(Sketcher.Constraint("Vertical", 20, 3, 27, 3))
sketch4.addConstraint(Sketcher.Constraint("Vertical", 27, 3, 28, 3))
sketch4.addConstraint(Sketcher.Constraint("Vertical", 28, 3, 29, 3))
sketch4.addConstraint(Sketcher.Constraint("Vertical", 29, 3, 30, 3))
sketch4.addConstraint(Sketcher.Constraint("Vertical", 30, 3, 31, 3))
sketch4.addConstraint(Sketcher.Constraint("Vertical", 0, 3, 32, 3))
sketch4.addConstraint(Sketcher.Constraint("Vertical", 21, 3, 33, 3))
sketch4.addConstraint(Sketcher.Constraint("Vertical", 22, 3, 34, 3))
sketch4.addConstraint(Sketcher.Constraint("Vertical", 23, 3, 35, 3))
sketch4.addConstraint(Sketcher.Constraint("Vertical", 31, 3, 40, 3))
sketch4.addConstraint(Sketcher.Constraint("Diameter", 0, 2.0))
sketch4.addConstraint(Sketcher.Constraint("DistanceX", 1, 3, 3, 3, 16.0))
sketch4.addConstraint(Sketcher.Constraint("DistanceY", 3, 3, 1, 3, 16.0))
sketch4.addConstraint(Sketcher.Constraint("DistanceX", 9, 3, 3, 3, 12.0))
sketch4.addConstraint(Sketcher.Constraint("DistanceX", 9, 3, 10, 3, 3.0))
sketch4.addConstraint(Sketcher.Constraint("DistanceX", 10, 3, 11, 3, 3.0))
sketch4.addConstraint(Sketcher.Constraint("DistanceX", 12, 3, 3, 3, 3.0))
sketch4.addConstraint(Sketcher.Constraint("DistanceY", 9, 3, 17, 3, 4.0))
sketch4.addConstraint(Sketcher.Constraint("DistanceY", 17, 3, 18, 3, 3.0))
sketch4.addConstraint(Sketcher.Constraint("DistanceY", 18, 3, 19, 3, 3.0))
sketch4.addConstraint(Sketcher.Constraint("DistanceY", 20, 3, 1, 3, 3.0))
sketch4.addConstraint(Sketcher.Constraint("DistanceX", 25, 3, 17, 3, 4.0))
sketch4.addConstraint(Sketcher.Constraint("DistanceY", 27, 3, 9, 3, 4.0))
sketch4.addConstraint(Sketcher.Constraint("DistanceY", 28, 3, 27, 3, 3.0))
sketch4.addConstraint(Sketcher.Constraint("DistanceY", 29, 3, 28, 3, 3.0))
sketch4.addConstraint(Sketcher.Constraint("DistanceY", 30, 3, 29, 3, 3.0))
sketch4.addConstraint(Sketcher.Constraint("DistanceY", 31, 3, 30, 3, 3.0))
sketch4.addConstraint(Sketcher.Constraint("DistanceX", 36, 3, 25, 3, 3.0))
sketch4.addConstraint(Sketcher.Constraint("DistanceX", 37, 3, 36, 3, 3.0))
sketch4.addConstraint(Sketcher.Constraint("DistanceX", 38, 3, 37, 3, 3.0))
sketch4.addConstraint(Sketcher.Constraint("DistanceX", 39, 3, 38, 3, 3.0))
sketch4.addConstraint(Sketcher.Constraint("DistanceY", 5, 3, 2, 3, 21.341999))
sketch4.addConstraint(Sketcher.Constraint("DistanceY", -1, 1, 15, 3, 14.6588))
sketch4.addConstraint(Sketcher.Constraint("DistanceY", -1, 1, 1, 3, 23.29949))
sketch4.addConstraint(Sketcher.Constraint("DistanceX", 3, 3, -1, 1, 27.133352))
sketch4.addConstraint(Sketcher.Constraint("DistanceY", 6, 3, -1, 1, 0.05982))
sketch4.addConstraint(Sketcher.Constraint("DistanceX", 0, 3, 2, 3, 21.665809))
sketch4.addConstraint(Sketcher.Constraint("DistanceY", 4, 3, 2, 3, 23.549792))
sketch4.addConstraint(Sketcher.Constraint("DistanceX", 5, 3, 4, 3, 2.03117))
sketch4.addConstraint(Sketcher.Constraint("DistanceX", 6, 3, 5, 3, 2.03117))
sketch4.addConstraint(Sketcher.Constraint("DistanceX", 7, 3, 6, 3, 2.031169))
sketch4.addConstraint(Sketcher.Constraint("DistanceY", 4, 3, 7, 3, 6.623379))
sketch4.addConstraint(Sketcher.Constraint("DistanceX", 8, 3, 7, 3, 2.03117))
sketch4.addConstraint(Sketcher.Constraint("DistanceY", 5, 3, 8, 3, 6.623379))
sketch4.addConstraint(Sketcher.Constraint("DistanceY", 7, 3, 13, 3, 8.095241))
sketch4.addConstraint(Sketcher.Constraint("DistanceY", 8, 3, 14, 3, 8.095241))
sketch4.addConstraint(Sketcher.Constraint("DistanceY", 13, 3, 16, 3, 6.623379))
sketch4.addConstraint(Sketcher.Constraint("DistanceX", 0, 3, 21, 3, 2.031169))
sketch4.addConstraint(Sketcher.Constraint("DistanceX", 21, 3, 22, 3, 2.03117))
sketch4.addConstraint(Sketcher.Constraint("DistanceX", 22, 3, 23, 3, 2.031169))
sketch4.addConstraint(Sketcher.Constraint("DistanceX", 23, 3, 24, 3, 2.03117))
sketch4.addConstraint(Sketcher.Constraint("DistanceX", 0, 3, -1, 1, 53.966256))
sketch4.addConstraint(Sketcher.Constraint("DistanceY", -1, 1, 0, 3, 19.074386))
sketch4.setExpression("Constraints[80]", "Params.sketch4_diameter")
doc.recompute()
hole2 = body.newObject("PartDesign::Hole", "Hole001")
hole2.Profile = sketch4
hole2.ThreadType = "None"
hole2.setExpression("Diameter", "Params.hole2_diameter")
hole2.DepthType = "ThroughAll"

doc.recompute()
